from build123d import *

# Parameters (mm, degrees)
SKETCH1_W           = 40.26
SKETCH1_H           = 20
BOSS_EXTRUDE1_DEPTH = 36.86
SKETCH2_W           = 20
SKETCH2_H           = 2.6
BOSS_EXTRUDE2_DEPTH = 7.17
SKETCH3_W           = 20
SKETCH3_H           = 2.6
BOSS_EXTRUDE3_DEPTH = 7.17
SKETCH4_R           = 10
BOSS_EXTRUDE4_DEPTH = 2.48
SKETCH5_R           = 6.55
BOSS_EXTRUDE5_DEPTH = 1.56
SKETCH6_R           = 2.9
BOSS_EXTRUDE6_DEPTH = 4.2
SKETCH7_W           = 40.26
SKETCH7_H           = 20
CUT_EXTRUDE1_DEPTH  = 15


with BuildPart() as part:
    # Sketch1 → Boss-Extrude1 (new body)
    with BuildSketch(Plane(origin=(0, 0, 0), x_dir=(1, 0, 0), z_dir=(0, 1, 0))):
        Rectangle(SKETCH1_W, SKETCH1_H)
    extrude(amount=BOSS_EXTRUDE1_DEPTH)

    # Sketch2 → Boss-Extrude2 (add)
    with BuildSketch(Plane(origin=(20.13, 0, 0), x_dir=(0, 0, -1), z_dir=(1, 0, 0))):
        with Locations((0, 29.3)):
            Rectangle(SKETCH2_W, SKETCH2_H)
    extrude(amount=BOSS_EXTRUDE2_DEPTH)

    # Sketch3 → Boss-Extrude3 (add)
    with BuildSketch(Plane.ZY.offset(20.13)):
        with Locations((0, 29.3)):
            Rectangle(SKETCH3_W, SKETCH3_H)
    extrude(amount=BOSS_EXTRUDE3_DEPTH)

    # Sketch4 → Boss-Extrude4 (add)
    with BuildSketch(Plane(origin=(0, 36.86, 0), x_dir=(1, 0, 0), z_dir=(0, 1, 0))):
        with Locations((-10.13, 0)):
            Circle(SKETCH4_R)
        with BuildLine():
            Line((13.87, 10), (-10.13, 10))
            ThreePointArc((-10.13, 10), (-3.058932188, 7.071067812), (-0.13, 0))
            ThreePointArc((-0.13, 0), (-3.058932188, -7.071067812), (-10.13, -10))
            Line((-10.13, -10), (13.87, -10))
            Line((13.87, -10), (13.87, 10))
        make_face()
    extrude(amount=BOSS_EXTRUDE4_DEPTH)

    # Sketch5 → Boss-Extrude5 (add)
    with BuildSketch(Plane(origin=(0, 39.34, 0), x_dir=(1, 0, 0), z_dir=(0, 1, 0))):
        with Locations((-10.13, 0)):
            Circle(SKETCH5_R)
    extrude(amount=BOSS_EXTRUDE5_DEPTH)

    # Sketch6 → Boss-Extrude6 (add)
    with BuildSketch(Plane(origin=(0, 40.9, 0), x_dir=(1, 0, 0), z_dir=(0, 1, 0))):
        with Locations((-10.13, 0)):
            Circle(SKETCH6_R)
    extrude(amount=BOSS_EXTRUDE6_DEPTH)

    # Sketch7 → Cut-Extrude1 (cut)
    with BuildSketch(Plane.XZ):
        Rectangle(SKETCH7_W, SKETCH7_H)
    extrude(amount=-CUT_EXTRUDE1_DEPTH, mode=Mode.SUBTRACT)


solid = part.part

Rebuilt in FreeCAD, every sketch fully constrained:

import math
import FreeCAD as App
import Part
import Sketcher
Q = App.Units.Quantity

doc = App.newDocument("Part")
params = doc.addObject("Spreadsheet::Sheet", "Params")
for row, (alias, value) in enumerate([
    ("sketch1_height", "20 mm"),
    ("sketch1_width", "40.26 mm"),
    ("pad1_length", "36.86 mm"),
    ("sketch2_height", "20 mm"),
    ("sketch2_width", "2.6 mm"),
    ("pad2_length", "7.17 mm"),
    ("sketch3_height", "20 mm"),
    ("sketch3_width", "2.6 mm"),
    ("pad3_length", "7.17 mm"),
    ("sketch4_radius", "10 mm"),
    ("sketch4_width", "24 mm"),
    ("pad4_length", "2.48 mm"),
    ("sketch5_diameter", "13.1 mm"),
    ("pad5_length", "1.56 mm"),
    ("sketch6_diameter", "5.8 mm"),
    ("pad6_length", "4.2 mm"),
    ("sketch7_height", "20 mm"),
    ("sketch7_width", "40.26 mm"),
    ("pocket1_length", "15 mm"),
], start=1):
    params.set(f"A{row}", alias)
    params.set(f"B{row}", "=" + value)
    params.setAlias(f"B{row}", alias)

body = doc.addObject("PartDesign::Body", "Body")

sketch1 = body.newObject("Sketcher::SketchObject", "Sketch")
sketch1.AttachmentSupport = (doc.getObject("XZ_Plane"), [""])
sketch1.MapMode = "FlatFace"
sketch1.addGeometry([
    Part.LineSegment(App.Vector(-20.13, -10, 0), App.Vector(-20.13, 10, 0)),
    Part.LineSegment(App.Vector(-20.13, 10, 0), App.Vector(20.13, 10, 0)),
    Part.LineSegment(App.Vector(20.13, 10, 0), App.Vector(20.13, -10, 0)),
    Part.LineSegment(App.Vector(20.13, -10, 0), App.Vector(-20.13, -10, 0)),
], False)
sketch1.addConstraint([
    Sketcher.Constraint("Coincident", 0, 2, 1, 1),
    Sketcher.Constraint("Coincident", 1, 2, 2, 1),
    Sketcher.Constraint("Coincident", 2, 2, 3, 1),
    Sketcher.Constraint("Coincident", 3, 2, 0, 1),
    Sketcher.Constraint("Vertical", 0),
    Sketcher.Constraint("Horizontal", 1),
    Sketcher.Constraint("Vertical", 2),
    Sketcher.Constraint("Horizontal", 3),
    Sketcher.Constraint("Symmetric", 0, 2, 2, 2, -1, 1),
    Sketcher.Constraint("DistanceY", 0, 1, 0, 2, Q("20 mm")),
    Sketcher.Constraint("DistanceX", 1, 1, 1, 2, Q("40.26 mm")),
])
sketch1.setExpression("Constraints[9]", "Params.sketch1_height")
sketch1.setExpression("Constraints[10]", "Params.sketch1_width")
pad1 = body.newObject("PartDesign::Pad", "Pad")
pad1.Profile = sketch1
pad1.setExpression("Length", "Params.pad1_length")
pad1.Reversed = True

sketch2 = body.newObject("Sketcher::SketchObject", "Sketch001")
sketch2.AttachmentSupport = (doc.getObject("YZ_Plane"), [""])
sketch2.MapMode = "FlatFace"
sketch2.AttachmentOffset = App.Placement(App.Vector(0, 0, 20.13), App.Rotation())
sketch2.addGeometry([
    Part.LineSegment(App.Vector(30.6, 10, 0), App.Vector(28, 10, 0)),
    Part.LineSegment(App.Vector(28, 10, 0), App.Vector(28, -10, 0)),
    Part.LineSegment(App.Vector(28, -10, 0), App.Vector(30.6, -10, 0)),
    Part.LineSegment(App.Vector(30.6, -10, 0), App.Vector(30.6, 10, 0)),
], False)
sketch2.addConstraint([
    Sketcher.Constraint("Coincident", 0, 2, 1, 1),
    Sketcher.Constraint("Coincident", 1, 2, 2, 1),
    Sketcher.Constraint("Coincident", 2, 2, 3, 1),
    Sketcher.Constraint("Coincident", 3, 2, 0, 1),
    Sketcher.Constraint("Horizontal", 0),
    Sketcher.Constraint("Vertical", 1),
    Sketcher.Constraint("Horizontal", 2),
    Sketcher.Constraint("Vertical", 3),
    Sketcher.Constraint("DistanceY", 1, 2, 1, 1, Q("20 mm")),
    Sketcher.Constraint("DistanceX", 0, 2, 0, 1, Q("2.6 mm")),
    Sketcher.Constraint("DistanceX", -1, 1, 0, 2, Q("28 mm")),
    Sketcher.Constraint("DistanceY", -1, 1, 0, 2, Q("10 mm")),
])
sketch2.setExpression("Constraints[8]", "Params.sketch2_height")
sketch2.setExpression("Constraints[9]", "Params.sketch2_width")
pad2 = body.newObject("PartDesign::Pad", "Pad001")
pad2.Profile = sketch2
pad2.setExpression("Length", "Params.pad2_length")

sketch3 = body.newObject("Sketcher::SketchObject", "Sketch002")
sketch3.AttachmentSupport = (doc.getObject("YZ_Plane"), [""])
sketch3.MapMode = "FlatFace"
sketch3.AttachmentOffset = App.Placement(App.Vector(0, 0, -20.13), App.Rotation())
sketch3.addGeometry([
    Part.LineSegment(App.Vector(30.6, -10, 0), App.Vector(28, -10, 0)),
    Part.LineSegment(App.Vector(28, -10, 0), App.Vector(28, 10, 0)),
    Part.LineSegment(App.Vector(28, 10, 0), App.Vector(30.6, 10, 0)),
    Part.LineSegment(App.Vector(30.6, 10, 0), App.Vector(30.6, -10, 0)),
], False)
sketch3.addConstraint([
    Sketcher.Constraint("Coincident", 0, 2, 1, 1),
    Sketcher.Constraint("Coincident", 1, 2, 2, 1),
    Sketcher.Constraint("Coincident", 2, 2, 3, 1),
    Sketcher.Constraint("Coincident", 3, 2, 0, 1),
    Sketcher.Constraint("Horizontal", 0),
    Sketcher.Constraint("Vertical", 1),
    Sketcher.Constraint("Horizontal", 2),
    Sketcher.Constraint("Vertical", 3),
    Sketcher.Constraint("DistanceY", 1, 1, 1, 2, Q("20 mm")),
    Sketcher.Constraint("DistanceX", 0, 2, 0, 1, Q("2.6 mm")),
    Sketcher.Constraint("DistanceX", -1, 1, 0, 2, Q("28 mm")),
    Sketcher.Constraint("DistanceY", 0, 2, -1, 1, Q("10 mm")),
])
sketch3.setExpression("Constraints[8]", "Params.sketch3_height")
sketch3.setExpression("Constraints[9]", "Params.sketch3_width")
pad3 = body.newObject("PartDesign::Pad", "Pad002")
pad3.Profile = sketch3
pad3.setExpression("Length", "Params.pad3_length")
pad3.Reversed = True

sketch4 = body.newObject("Sketcher::SketchObject", "Sketch003")
sketch4.AttachmentSupport = (doc.getObject("XZ_Plane"), [""])
sketch4.MapMode = "FlatFace"
sketch4.AttachmentOffset = App.Placement(App.Vector(0, 0, -36.86), App.Rotation())
sketch4.addGeometry([
    Part.ArcOfCircle(Part.Circle(App.Vector(-10.13, 0, 0), App.Vector(0, 0, 1), 10), math.radians(90), math.radians(270)),
    Part.LineSegment(App.Vector(-10.13, 10, 0), App.Vector(13.87, 10, 0)),
    Part.LineSegment(App.Vector(13.87, 10, 0), App.Vector(13.87, -10, 0)),
    Part.LineSegment(App.Vector(13.87, -10, 0), App.Vector(-10.13, -10, 0)),
], False)
sketch4.addConstraint([
    Sketcher.Constraint("Tangent", 0, 1, 1, 1),
    Sketcher.Constraint("Coincident", 1, 2, 2, 1),
    Sketcher.Constraint("Coincident", 2, 2, 3, 1),
    Sketcher.Constraint("Tangent", 3, 2, 0, 2),
    Sketcher.Constraint("Horizontal", 1),
    Sketcher.Constraint("Vertical", 2),
    Sketcher.Constraint("Horizontal", 3),
    Sketcher.Constraint("PointOnObject", 0, 3, -1),
    Sketcher.Constraint("Radius", 0, Q("10 mm")),
    Sketcher.Constraint("DistanceX", 1, 1, 1, 2, Q("24 mm")),
    Sketcher.Constraint("DistanceX", 0, 3, -1, 1, Q("10.13 mm")),
])
sketch4.setExpression("Constraints[8]", "Params.sketch4_radius")
sketch4.setExpression("Constraints[9]", "Params.sketch4_width")
pad4 = body.newObject("PartDesign::Pad", "Pad003")
pad4.Profile = sketch4
pad4.setExpression("Length", "Params.pad4_length")
pad4.Reversed = True

sketch5 = body.newObject("Sketcher::SketchObject", "Sketch004")
sketch5.AttachmentSupport = (doc.getObject("XZ_Plane"), [""])
sketch5.MapMode = "FlatFace"
sketch5.AttachmentOffset = App.Placement(App.Vector(0, 0, -39.34), App.Rotation())
sketch5.addGeometry(Part.Circle(App.Vector(-10.13, 0, 0), App.Vector(0, 0, 1), 6.55), False)
sketch5.addConstraint([
    Sketcher.Constraint("PointOnObject", 0, 3, -1),
    Sketcher.Constraint("Diameter", 0, Q("13.1 mm")),
    Sketcher.Constraint("DistanceX", 0, 3, -1, 1, Q("10.13 mm")),
])
sketch5.setExpression("Constraints[1]", "Params.sketch5_diameter")
pad5 = body.newObject("PartDesign::Pad", "Pad004")
pad5.Profile = sketch5
pad5.setExpression("Length", "Params.pad5_length")
pad5.Reversed = True

sketch6 = body.newObject("Sketcher::SketchObject", "Sketch005")
sketch6.AttachmentSupport = (doc.getObject("XZ_Plane"), [""])
sketch6.MapMode = "FlatFace"
sketch6.AttachmentOffset = App.Placement(App.Vector(0, 0, -40.9), App.Rotation())
sketch6.addGeometry(Part.Circle(App.Vector(-10.13, 0, 0), App.Vector(0, 0, 1), 2.9), False)
sketch6.addConstraint([
    Sketcher.Constraint("PointOnObject", 0, 3, -1),
    Sketcher.Constraint("Diameter", 0, Q("5.8 mm")),
    Sketcher.Constraint("DistanceX", 0, 3, -1, 1, Q("10.13 mm")),
])
sketch6.setExpression("Constraints[1]", "Params.sketch6_diameter")
pad6 = body.newObject("PartDesign::Pad", "Pad005")
pad6.Profile = sketch6
pad6.setExpression("Length", "Params.pad6_length")
pad6.Reversed = True

sketch7 = body.newObject("Sketcher::SketchObject", "Sketch006")
sketch7.AttachmentSupport = (doc.getObject("XZ_Plane"), [""])
sketch7.MapMode = "FlatFace"
sketch7.addGeometry([
    Part.LineSegment(App.Vector(-20.13, 10, 0), App.Vector(-20.13, -10, 0)),
    Part.LineSegment(App.Vector(-20.13, -10, 0), App.Vector(20.13, -10, 0)),
    Part.LineSegment(App.Vector(20.13, -10, 0), App.Vector(20.13, 10, 0)),
    Part.LineSegment(App.Vector(20.13, 10, 0), App.Vector(-20.13, 10, 0)),
], False)
sketch7.addConstraint([
    Sketcher.Constraint("Coincident", 0, 2, 1, 1),
    Sketcher.Constraint("Coincident", 1, 2, 2, 1),
    Sketcher.Constraint("Coincident", 2, 2, 3, 1),
    Sketcher.Constraint("Coincident", 3, 2, 0, 1),
    Sketcher.Constraint("Vertical", 0),
    Sketcher.Constraint("Horizontal", 1),
    Sketcher.Constraint("Vertical", 2),
    Sketcher.Constraint("Horizontal", 3),
    Sketcher.Constraint("Symmetric", 0, 2, 2, 2, -1, 1),
    Sketcher.Constraint("DistanceY", 0, 2, 0, 1, Q("20 mm")),
    Sketcher.Constraint("DistanceX", 1, 1, 1, 2, Q("40.26 mm")),
])
sketch7.setExpression("Constraints[9]", "Params.sketch7_height")
sketch7.setExpression("Constraints[10]", "Params.sketch7_width")
pocket1 = body.newObject("PartDesign::Pocket", "Pocket")
pocket1.Profile = sketch7
pocket1.setExpression("Length", "Params.pocket1_length")

doc.recompute()
